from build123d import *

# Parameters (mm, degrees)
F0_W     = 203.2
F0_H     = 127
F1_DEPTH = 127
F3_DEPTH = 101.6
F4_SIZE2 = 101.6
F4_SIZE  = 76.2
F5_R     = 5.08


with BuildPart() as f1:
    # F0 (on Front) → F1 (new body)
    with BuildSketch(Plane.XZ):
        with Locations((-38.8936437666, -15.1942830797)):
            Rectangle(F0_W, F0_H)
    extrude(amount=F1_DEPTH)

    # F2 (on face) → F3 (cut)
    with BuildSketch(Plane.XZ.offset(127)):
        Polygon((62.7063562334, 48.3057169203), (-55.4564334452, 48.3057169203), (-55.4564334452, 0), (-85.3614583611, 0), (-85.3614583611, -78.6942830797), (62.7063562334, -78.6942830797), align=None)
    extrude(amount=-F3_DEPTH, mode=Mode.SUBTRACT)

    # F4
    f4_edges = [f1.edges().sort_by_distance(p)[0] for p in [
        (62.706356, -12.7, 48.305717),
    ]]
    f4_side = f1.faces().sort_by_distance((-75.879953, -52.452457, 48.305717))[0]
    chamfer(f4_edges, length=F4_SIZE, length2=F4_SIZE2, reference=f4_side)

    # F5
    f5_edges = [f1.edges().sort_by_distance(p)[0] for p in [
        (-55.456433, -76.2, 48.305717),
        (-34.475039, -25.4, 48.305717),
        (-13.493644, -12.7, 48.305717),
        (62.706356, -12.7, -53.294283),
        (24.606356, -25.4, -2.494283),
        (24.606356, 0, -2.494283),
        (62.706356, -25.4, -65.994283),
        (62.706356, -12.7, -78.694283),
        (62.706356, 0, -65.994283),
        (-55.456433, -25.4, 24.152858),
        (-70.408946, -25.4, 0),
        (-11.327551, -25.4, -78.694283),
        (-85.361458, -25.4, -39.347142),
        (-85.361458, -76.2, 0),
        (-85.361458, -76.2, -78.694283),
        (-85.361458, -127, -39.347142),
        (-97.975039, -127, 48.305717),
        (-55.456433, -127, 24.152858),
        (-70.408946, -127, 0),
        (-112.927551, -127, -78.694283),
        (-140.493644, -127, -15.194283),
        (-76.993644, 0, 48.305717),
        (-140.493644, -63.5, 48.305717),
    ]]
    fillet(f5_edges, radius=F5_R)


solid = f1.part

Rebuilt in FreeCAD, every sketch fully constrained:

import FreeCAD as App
import Part
import Sketcher

V = App.Vector
Q = App.Units.Quantity


def edges_at(feature, points):
    """Names of the edges that pass closest to the given points."""
    edges = feature.Shape.Edges
    near = lambda p: min(range(len(edges)), key=lambda i: edges[i].distToShape(Part.Vertex(*p))[0])
    return sorted({f"Edge{near(p) + 1}" for p in points})


def add_polygon(sketch, points):
    """Adds a closed chain of lines whose ends are joined by coincident constraints."""
    first, n = sketch.GeometryCount, len(points)
    for a, b in zip(points, points[1:] + points[:1]):
        sketch.addGeometry(Part.LineSegment(App.Vector(*a, 0), App.Vector(*b, 0)), False)
    for i in range(n):
        sketch.addConstraint(Sketcher.Constraint("Coincident", first + i, 2, first + (i + 1) % n, 1))

doc = App.newDocument("Part")
body = doc.addObject("PartDesign::Body", "Body")

sketch1 = doc.addObject("Sketcher::SketchObject", "Sketch")
body.addObject(sketch1)
sketch1.AttachmentSupport = (doc.XZ_Plane, [""])
sketch1.MapMode = "FlatFace"
add_polygon(sketch1, [(-140, 48), (-140, -79), (63, -79), (63, 48)])
sketch1.addConstraint([
    Sketcher.Constraint("Vertical", 0),
    Sketcher.Constraint("Horizontal", 1),
    Sketcher.Constraint("Vertical", 2),
    Sketcher.Constraint("Horizontal", 3),
    Sketcher.Constraint("DistanceX", 1, 1, 1, 2, Q("8 in")),
    Sketcher.Constraint("DistanceY", 0, 2, 0, 1, Q("5 in")),
    Sketcher.Constraint("DistanceY", 0, 2, -1, 1, Q("3.0982001 in")),
    Sketcher.Constraint("DistanceX", 0, 2, -1, 1, Q("140.493644 mm")),
])
pad1 = doc.addObject("PartDesign::Pad", "Pad")
body.addObject(pad1)
pad1.Profile = sketch1
pad1.Length = Q("5 in")

sketch2 = doc.addObject("Sketcher::SketchObject", "Sketch001")
body.addObject(sketch2)
sketch2.AttachmentSupport = (doc.XZ_Plane, [""])
sketch2.MapMode = "FlatFace"
sketch2.AttachmentOffset = App.Placement(V(0, 0, 5 * 25.4), App.Rotation())
add_polygon(sketch2, [(63, 48), (-55, 48), (-55, 0), (-85, 0), (-85, -79), (63, -79)])
sketch2.addConstraint([
    Sketcher.Constraint("Horizontal", 0),
    Sketcher.Constraint("Vertical", 1),
    Sketcher.Constraint("Horizontal", 2),
    Sketcher.Constraint("Vertical", 3),
    Sketcher.Constraint("Horizontal", 4),
    Sketcher.Constraint("Vertical", 5),
    Sketcher.Constraint("PointOnObject", 1, 2, -1),
    Sketcher.Constraint("DistanceY", 5, 1, 5, 2, Q("5 in")),
    Sketcher.Constraint("DistanceY", 1, 2, 1, 1, Q("1.9017999 in")),
    Sketcher.Constraint("DistanceX", 0, 2, 0, 1, Q("118.16279 mm")),
    Sketcher.Constraint("DistanceX", 2, 2, 2, 1, Q("29.905025 mm")),
    Sketcher.Constraint("DistanceX", 2, 2, -1, 1, Q("85.361458 mm")),
])
pocket1 = doc.addObject("PartDesign::Pocket", "Pocket")
body.addObject(pocket1)
pocket1.Profile = sketch2
pocket1.Length = Q("4 in")
doc.recompute()

chamfer = doc.addObject("PartDesign::Chamfer", "Chamfer")
body.addObject(chamfer)
chamfer.Base = (pocket1, edges_at(pocket1, [(62.706, -12.7, 48.306)]))
chamfer.ChamferType = "Two distances"
chamfer.Size = Q("3 in")
chamfer.Size2 = Q("4 in")
doc.recompute()

fillet = doc.addObject("PartDesign::Fillet", "Fillet")
body.addObject(fillet)
fillet.Base = (chamfer, edges_at(chamfer, [
    (-55.456, -76.2, 48.306),
    (-34.475, -25.4, 48.306),
    (-13.494, -12.7, 48.306),
    (62.706, -12.7, -53.294),
    (24.606, -25.4, -2.494),
    (24.606, 0, -2.494),
    (62.706, -25.4, -65.994),
    (62.706, -12.7, -78.694),
    (62.706, 0, -65.994),
    (-55.456, -25.4, 24.153),
    (-70.409, -25.4, 0),
    (-11.328, -25.4, -78.694),
    (-85.361, -25.4, -39.347),
    (-85.361, -76.2, 0),
    (-85.361, -76.2, -78.694),
    (-85.361, -127, -39.347),
    (-97.975, -127, 48.306),
    (-55.456, -127, 24.153),
    (-70.409, -127, 0),
    (-112.928, -127, -78.694),
    (-140.494, -127, -15.194),
    (-76.994, 0, 48.306),
    (-140.494, -63.5, 48.306),
]))
fillet.Radius = Q("0.2 in")

doc.recompute()
